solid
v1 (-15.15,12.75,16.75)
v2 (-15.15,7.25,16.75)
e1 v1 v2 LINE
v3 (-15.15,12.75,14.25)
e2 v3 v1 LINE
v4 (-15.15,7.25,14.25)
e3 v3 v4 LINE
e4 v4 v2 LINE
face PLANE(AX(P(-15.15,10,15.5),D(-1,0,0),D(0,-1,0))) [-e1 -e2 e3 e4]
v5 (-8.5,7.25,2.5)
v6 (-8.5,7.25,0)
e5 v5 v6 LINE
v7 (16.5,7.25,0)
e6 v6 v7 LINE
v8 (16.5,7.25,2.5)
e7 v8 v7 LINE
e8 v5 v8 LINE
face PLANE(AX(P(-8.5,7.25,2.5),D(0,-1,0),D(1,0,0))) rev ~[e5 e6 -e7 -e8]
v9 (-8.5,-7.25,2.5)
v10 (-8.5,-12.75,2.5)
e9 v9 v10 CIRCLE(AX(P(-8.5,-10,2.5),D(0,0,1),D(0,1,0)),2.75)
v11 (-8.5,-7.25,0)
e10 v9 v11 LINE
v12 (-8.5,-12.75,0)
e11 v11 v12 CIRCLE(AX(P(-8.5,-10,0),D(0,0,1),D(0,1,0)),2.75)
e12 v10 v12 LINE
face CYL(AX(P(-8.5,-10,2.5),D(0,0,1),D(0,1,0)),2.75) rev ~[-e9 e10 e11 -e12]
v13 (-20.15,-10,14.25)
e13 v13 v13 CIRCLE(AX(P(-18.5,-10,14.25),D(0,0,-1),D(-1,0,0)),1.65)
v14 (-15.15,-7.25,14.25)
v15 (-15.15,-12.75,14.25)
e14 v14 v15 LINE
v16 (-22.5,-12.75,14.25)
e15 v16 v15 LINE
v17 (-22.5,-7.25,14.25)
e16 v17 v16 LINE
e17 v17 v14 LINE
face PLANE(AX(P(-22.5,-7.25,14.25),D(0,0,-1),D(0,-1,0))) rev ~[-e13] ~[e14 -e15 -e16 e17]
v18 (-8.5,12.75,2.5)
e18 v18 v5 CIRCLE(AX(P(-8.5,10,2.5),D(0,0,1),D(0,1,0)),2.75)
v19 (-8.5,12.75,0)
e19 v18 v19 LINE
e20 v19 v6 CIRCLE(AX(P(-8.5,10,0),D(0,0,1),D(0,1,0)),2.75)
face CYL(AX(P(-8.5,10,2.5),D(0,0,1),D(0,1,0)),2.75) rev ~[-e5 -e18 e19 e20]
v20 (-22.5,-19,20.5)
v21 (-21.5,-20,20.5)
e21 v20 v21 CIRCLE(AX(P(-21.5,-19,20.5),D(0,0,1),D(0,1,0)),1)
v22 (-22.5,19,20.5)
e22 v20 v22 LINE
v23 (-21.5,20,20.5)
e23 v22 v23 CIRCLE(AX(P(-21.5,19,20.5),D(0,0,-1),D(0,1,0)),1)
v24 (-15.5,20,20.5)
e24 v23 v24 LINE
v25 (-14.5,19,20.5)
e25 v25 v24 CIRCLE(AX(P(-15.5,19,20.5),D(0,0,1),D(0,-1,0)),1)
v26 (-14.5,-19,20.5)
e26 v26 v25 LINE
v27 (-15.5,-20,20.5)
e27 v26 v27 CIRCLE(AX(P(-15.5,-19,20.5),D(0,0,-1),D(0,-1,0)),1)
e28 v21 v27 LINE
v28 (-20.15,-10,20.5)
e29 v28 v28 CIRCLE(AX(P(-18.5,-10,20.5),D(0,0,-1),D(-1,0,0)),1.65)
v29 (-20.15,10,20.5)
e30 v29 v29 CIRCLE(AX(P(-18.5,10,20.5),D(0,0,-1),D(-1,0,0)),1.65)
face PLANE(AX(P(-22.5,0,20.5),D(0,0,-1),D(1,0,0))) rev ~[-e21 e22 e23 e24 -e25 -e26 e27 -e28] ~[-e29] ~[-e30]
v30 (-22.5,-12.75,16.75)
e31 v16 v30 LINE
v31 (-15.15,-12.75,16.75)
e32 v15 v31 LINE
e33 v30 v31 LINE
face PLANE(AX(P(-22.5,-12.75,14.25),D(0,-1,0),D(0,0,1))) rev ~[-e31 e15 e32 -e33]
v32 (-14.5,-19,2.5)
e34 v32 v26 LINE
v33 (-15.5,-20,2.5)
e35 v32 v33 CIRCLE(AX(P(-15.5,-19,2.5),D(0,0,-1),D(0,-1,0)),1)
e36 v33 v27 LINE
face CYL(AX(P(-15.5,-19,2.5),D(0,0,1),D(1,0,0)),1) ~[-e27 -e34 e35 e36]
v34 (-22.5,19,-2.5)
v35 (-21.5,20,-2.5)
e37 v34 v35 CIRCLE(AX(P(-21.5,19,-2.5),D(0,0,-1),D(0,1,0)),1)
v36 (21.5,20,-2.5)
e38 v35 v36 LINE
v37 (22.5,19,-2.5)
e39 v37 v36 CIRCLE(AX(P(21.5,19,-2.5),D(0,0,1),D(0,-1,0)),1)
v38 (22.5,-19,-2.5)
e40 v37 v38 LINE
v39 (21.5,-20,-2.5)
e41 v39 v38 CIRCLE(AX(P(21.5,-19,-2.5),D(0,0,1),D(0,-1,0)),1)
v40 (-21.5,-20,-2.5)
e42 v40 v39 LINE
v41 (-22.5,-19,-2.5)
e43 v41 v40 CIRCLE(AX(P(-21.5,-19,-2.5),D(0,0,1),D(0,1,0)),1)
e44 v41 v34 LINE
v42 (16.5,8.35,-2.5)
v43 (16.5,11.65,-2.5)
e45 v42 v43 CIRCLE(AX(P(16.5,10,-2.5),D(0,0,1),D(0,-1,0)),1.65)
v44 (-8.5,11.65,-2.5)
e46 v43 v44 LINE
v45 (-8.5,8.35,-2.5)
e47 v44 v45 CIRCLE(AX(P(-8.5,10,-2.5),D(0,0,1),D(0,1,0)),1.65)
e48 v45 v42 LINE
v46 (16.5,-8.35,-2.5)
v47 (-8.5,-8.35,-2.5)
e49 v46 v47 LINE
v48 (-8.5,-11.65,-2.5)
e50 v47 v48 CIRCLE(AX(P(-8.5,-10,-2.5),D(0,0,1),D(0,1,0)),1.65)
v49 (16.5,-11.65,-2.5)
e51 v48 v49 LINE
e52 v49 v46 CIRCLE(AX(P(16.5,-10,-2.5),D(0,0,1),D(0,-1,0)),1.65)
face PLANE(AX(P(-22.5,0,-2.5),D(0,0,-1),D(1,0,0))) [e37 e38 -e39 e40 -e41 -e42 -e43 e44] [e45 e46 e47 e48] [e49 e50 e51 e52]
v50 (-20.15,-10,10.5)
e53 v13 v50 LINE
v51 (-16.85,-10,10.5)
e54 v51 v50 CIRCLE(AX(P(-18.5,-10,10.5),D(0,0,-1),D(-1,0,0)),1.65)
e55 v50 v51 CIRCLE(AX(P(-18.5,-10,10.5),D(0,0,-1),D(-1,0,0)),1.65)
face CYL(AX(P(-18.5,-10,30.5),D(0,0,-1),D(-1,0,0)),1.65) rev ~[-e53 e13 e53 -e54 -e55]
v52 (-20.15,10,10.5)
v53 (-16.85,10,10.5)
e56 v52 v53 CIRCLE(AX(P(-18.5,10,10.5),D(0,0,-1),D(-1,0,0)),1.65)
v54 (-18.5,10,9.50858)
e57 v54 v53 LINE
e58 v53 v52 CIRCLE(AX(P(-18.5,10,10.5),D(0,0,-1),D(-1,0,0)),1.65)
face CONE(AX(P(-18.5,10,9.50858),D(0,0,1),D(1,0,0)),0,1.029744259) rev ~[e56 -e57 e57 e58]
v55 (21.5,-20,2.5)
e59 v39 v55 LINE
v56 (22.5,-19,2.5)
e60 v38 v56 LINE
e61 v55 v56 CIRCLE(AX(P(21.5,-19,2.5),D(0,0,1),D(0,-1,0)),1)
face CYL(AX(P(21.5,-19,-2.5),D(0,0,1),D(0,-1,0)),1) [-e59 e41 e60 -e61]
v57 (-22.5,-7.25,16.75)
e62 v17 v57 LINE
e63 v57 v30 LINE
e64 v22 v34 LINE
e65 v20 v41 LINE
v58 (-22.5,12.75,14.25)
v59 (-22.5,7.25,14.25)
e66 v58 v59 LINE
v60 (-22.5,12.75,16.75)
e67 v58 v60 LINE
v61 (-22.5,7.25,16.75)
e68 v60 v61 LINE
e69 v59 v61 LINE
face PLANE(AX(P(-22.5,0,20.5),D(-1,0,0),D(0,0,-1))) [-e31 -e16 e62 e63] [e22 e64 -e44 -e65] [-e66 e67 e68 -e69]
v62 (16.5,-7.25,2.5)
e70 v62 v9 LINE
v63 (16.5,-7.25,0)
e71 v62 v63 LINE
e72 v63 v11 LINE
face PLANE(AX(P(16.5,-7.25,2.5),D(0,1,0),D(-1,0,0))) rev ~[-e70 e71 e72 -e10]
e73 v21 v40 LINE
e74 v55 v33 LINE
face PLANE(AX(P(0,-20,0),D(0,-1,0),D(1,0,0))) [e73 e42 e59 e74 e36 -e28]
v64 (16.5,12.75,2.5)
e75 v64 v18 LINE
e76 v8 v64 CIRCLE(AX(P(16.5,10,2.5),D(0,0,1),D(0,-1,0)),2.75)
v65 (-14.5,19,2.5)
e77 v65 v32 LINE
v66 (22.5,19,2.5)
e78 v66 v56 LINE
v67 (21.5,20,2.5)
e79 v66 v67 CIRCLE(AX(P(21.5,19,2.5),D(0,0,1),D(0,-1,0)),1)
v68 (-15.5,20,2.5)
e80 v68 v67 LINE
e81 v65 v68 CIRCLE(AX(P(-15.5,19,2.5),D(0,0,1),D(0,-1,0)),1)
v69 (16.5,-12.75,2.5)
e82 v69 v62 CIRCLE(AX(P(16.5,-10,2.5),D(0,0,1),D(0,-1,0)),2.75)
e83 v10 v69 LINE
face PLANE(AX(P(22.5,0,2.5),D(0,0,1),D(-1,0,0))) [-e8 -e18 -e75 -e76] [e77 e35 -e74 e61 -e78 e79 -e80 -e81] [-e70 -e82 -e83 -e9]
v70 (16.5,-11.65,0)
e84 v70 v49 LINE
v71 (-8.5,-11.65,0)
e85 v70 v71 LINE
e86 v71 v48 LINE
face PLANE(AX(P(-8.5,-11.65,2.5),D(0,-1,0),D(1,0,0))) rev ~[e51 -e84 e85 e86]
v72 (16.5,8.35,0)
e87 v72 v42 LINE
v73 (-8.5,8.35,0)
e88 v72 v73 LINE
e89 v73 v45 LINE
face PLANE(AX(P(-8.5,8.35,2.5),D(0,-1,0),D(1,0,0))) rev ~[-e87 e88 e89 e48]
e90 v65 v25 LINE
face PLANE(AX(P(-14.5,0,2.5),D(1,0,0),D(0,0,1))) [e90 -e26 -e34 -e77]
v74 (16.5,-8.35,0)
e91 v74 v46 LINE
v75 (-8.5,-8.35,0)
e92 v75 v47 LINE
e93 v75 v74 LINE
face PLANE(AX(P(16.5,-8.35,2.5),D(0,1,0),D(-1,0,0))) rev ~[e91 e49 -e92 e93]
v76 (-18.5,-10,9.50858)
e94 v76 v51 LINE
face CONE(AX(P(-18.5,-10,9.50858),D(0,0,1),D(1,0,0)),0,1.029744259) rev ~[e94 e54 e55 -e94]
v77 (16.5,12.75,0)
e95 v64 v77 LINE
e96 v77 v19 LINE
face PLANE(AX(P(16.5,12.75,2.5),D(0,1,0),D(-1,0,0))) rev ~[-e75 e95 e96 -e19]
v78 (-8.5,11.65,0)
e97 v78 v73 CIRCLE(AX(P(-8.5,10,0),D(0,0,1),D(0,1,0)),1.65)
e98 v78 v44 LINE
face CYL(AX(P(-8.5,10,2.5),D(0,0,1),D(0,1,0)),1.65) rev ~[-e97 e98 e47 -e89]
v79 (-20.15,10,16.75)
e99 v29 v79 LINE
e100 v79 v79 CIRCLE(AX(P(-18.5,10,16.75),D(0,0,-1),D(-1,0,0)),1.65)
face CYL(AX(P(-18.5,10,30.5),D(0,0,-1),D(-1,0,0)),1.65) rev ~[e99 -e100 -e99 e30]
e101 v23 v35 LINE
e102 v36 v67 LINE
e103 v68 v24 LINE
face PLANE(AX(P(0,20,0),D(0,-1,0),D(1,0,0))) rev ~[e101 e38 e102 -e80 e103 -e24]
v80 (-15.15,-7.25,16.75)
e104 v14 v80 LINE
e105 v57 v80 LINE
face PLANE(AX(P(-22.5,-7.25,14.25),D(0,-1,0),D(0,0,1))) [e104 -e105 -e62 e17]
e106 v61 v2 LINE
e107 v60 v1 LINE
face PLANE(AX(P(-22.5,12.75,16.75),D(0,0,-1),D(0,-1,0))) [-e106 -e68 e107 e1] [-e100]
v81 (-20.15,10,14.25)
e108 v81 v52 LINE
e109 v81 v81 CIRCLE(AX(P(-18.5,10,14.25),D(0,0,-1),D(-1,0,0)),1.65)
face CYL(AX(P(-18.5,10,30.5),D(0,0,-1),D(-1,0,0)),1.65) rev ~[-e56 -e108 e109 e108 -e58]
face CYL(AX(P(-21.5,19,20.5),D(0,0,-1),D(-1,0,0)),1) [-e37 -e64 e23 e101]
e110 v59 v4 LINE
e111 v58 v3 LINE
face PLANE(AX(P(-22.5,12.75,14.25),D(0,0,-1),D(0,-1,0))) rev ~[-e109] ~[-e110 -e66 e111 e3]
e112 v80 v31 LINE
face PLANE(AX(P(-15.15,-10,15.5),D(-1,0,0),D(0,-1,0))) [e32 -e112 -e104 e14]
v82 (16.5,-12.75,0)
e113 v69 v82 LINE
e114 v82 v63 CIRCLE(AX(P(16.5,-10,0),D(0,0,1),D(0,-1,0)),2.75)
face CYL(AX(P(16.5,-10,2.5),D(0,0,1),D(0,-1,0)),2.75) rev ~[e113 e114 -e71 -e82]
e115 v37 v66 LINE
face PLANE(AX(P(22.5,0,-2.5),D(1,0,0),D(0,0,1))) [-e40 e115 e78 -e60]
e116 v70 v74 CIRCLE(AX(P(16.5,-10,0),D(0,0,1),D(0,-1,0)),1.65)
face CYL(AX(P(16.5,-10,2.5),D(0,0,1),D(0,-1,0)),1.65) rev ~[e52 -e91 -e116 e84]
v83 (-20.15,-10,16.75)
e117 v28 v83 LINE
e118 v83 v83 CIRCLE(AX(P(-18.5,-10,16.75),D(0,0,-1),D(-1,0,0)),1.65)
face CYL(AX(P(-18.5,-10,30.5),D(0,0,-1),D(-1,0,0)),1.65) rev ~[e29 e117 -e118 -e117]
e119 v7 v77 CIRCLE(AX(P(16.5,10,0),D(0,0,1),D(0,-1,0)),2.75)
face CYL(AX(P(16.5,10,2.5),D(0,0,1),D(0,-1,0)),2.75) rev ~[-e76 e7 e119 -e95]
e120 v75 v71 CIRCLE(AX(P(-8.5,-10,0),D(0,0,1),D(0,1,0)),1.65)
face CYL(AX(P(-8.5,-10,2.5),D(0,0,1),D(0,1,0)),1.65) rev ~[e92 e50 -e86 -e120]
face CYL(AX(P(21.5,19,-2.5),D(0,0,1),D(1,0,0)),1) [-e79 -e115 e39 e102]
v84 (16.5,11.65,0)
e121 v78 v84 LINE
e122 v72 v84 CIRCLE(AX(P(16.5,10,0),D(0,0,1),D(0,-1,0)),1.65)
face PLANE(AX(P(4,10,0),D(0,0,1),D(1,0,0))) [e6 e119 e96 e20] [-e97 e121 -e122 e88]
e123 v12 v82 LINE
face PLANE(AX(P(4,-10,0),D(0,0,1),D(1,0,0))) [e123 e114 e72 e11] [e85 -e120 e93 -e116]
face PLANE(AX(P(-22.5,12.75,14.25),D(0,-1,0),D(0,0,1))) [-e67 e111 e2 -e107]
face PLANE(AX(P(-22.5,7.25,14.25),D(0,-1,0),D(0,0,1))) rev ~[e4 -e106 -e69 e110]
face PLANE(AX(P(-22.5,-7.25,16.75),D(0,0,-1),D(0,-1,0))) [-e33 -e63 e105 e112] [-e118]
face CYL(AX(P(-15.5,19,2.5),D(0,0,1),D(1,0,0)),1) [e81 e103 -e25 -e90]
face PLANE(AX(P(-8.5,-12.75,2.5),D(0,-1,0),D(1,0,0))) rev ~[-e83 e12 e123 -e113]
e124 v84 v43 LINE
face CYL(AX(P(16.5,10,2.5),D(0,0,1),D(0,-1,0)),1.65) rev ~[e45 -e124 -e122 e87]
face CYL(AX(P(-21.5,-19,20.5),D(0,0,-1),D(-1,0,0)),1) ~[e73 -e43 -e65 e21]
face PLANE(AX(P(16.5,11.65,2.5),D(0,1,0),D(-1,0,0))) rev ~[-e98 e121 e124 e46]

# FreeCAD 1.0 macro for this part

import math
import FreeCAD as App
import Part
import Sketcher

V = App.Vector
Q = App.Units.Quantity


def edges_at(feature, points):
    """Names of the edges that pass closest to the given points."""
    edges = feature.Shape.Edges
    near = lambda p: min(range(len(edges)), key=lambda i: edges[i].distToShape(Part.Vertex(*p))[0])
    return sorted({f"Edge{near(p) + 1}" for p in points})


def add_polygon(sketch, points):
    """Adds a closed chain of lines whose ends are joined by coincident constraints."""
    first, n = sketch.GeometryCount, len(points)
    for a, b in zip(points, points[1:] + points[:1]):
        sketch.addGeometry(Part.LineSegment(App.Vector(*a, 0), App.Vector(*b, 0)), False)
    for i in range(n):
        sketch.addConstraint(Sketcher.Constraint("Coincident", first + i, 2, first + (i + 1) % n, 1))

doc = App.newDocument("Part")
body = doc.addObject("PartDesign::Body", "Body")

# Sketch on XZ plane
sketch1 = body.newObject("Sketcher::SketchObject", "Sketch")
sketch1.AttachmentSupport = (doc.getObject("XZ_Plane"), [""])
sketch1.MapMode = "FlatFace"
add_polygon(sketch1, [(-22, -2), (22, -2), (22, 2), (-14, 2), (-14, 20), (-22, 20)])  # lines 0-5
sketch1.addConstraint([
    Sketcher.Constraint("Horizontal", 0),
    Sketcher.Constraint("Vertical", 1),
    Sketcher.Constraint("Horizontal", 2),
    Sketcher.Constraint("Vertical", 3),
    Sketcher.Constraint("Horizontal", 4),
    Sketcher.Constraint("Vertical", 5),
    Sketcher.Constraint("Symmetric", 1, 2, 5, 2, -1, 1),
    Sketcher.Constraint("DistanceX", 0, 1, 0, 2, Q("45 mm")),
    Sketcher.Constraint("DistanceX", 2, 2, 2, 1, Q("37 mm")),
    Sketcher.Constraint("DistanceY", 1, 1, 1, 2, Q("5 mm")),
    Sketcher.Constraint("DistanceY", 3, 1, 3, 2, Q("18 mm")),
])
pad1 = body.newObject("PartDesign::Pad", "Pad")
pad1.Profile = sketch1
pad1.Length = 40
pad1.Midplane = True
doc.recompute()

fillet = body.newObject("PartDesign::Fillet", "Fillet")
fillet.Base = (pad1, edges_at(pad1, [
    (-22.5, -20, 9),
    (-14.5, -20, 11.5),
    (22.5, -20, 0),
    (22.5, 20, 0),
    (-22.5, 20, 9),
    (-14.5, 20, 11.5),
]))
fillet.Radius = 1

# Sketch on XY plane
sketch2 = body.newObject("Sketcher::SketchObject", "Sketch001")
sketch2.AttachmentSupport = (doc.getObject("XY_Plane"), [""])
sketch2.MapMode = "FlatFace"
sketch2.AttachmentOffset = App.Placement(V(0, 0, 2.5), App.Rotation())
sketch2.addGeometry([
    Part.ArcOfCircle(Part.Circle(V(-8.5, 10, 0), V(0, 0, 1), 1.6), math.radians(90), math.radians(270)),  # 0
    Part.LineSegment(V(-8.5, 8.3, 0), V(16.5, 8.3, 0)),  # 1
    Part.ArcOfCircle(Part.Circle(V(16.5, 10, 0), V(0, 0, 1), 1.6), math.radians(-90), math.radians(90)),  # 2
    Part.LineSegment(V(16.5, 11.7, 0), V(-8.5, 11.7, 0)),  # 3
    Part.ArcOfCircle(Part.Circle(V(-8.5, -10, 0), V(0, 0, 1), 1.6), math.radians(90), math.radians(270)),  # 4
    Part.LineSegment(V(-8.5, -11.7, 0), V(16.5, -11.7, 0)),  # 5
    Part.ArcOfCircle(Part.Circle(V(16.5, -10, 0), V(0, 0, 1), 1.6), math.radians(-90), math.radians(90)),  # 6
    Part.LineSegment(V(16.5, -8.3, 0), V(-8.5, -8.3, 0)),  # 7
], False)
sketch2.addConstraint([
    Sketcher.Constraint("Tangent", 0, 2, 1, 1),
    Sketcher.Constraint("Tangent", 1, 2, 2, 1),
    Sketcher.Constraint("Tangent", 2, 2, 3, 1),
    Sketcher.Constraint("Tangent", 3, 2, 0, 1),
    Sketcher.Constraint("Tangent", 4, 2, 5, 1),
    Sketcher.Constraint("Tangent", 5, 2, 6, 1),
    Sketcher.Constraint("Tangent", 6, 2, 7, 1),
    Sketcher.Constraint("Tangent", 7, 2, 4, 1),
    Sketcher.Constraint("Horizontal", 1),
    Sketcher.Constraint("Horizontal", 3),
    Sketcher.Constraint("Horizontal", 5),
    Sketcher.Constraint("Horizontal", 7),
    Sketcher.Constraint("Equal", 2, 4),
    Sketcher.Constraint("Symmetric", 0, 3, 4, 3, -1),
    Sketcher.Constraint("Vertical", 2, 3, 6, 3),
    Sketcher.Constraint("DistanceX", 1, 1, 1, 2, Q("25 mm")),
    Sketcher.Constraint("Radius", 0, Q("1.65 mm")),
    Sketcher.Constraint("DistanceY", -1, 1, 0, 3, Q("10 mm")),
    Sketcher.Constraint("DistanceX", 0, 3, -1, 1, Q("8.5 mm")),
])
pocket1 = body.newObject("PartDesign::Pocket", "Pocket")
pocket1.Profile = sketch2
pocket1.Length = 5

# Sketch on XY plane
sketch3 = body.newObject("Sketcher::SketchObject", "Sketch002")
sketch3.AttachmentSupport = (doc.getObject("XY_Plane"), [""])
sketch3.MapMode = "FlatFace"
sketch3.AttachmentOffset = App.Placement(V(0, 0, 2.5), App.Rotation())
sketch3.addGeometry([
    Part.ArcOfCircle(Part.Circle(V(-8.5, 10, 0), V(0, 0, 1), 2.8), math.radians(90), math.radians(270)),  # 0
    Part.LineSegment(V(-8.5, 7.2, 0), V(16.5, 7.2, 0)),  # 1
    Part.ArcOfCircle(Part.Circle(V(16.5, 10, 0), V(0, 0, 1), 2.8), math.radians(-90), math.radians(90)),  # 2
    Part.LineSegment(V(16.5, 12.8, 0), V(-8.5, 12.8, 0)),  # 3
    Part.ArcOfCircle(Part.Circle(V(-8.5, -10, 0), V(0, 0, 1), 2.8), math.radians(90), math.radians(270)),  # 4
    Part.LineSegment(V(-8.5, -12.8, 0), V(16.5, -12.8, 0)),  # 5
    Part.ArcOfCircle(Part.Circle(V(16.5, -10, 0), V(0, 0, 1), 2.8), math.radians(-90), math.radians(90)),  # 6
    Part.LineSegment(V(16.5, -7.2, 0), V(-8.5, -7.2, 0)),  # 7
], False)
sketch3.addConstraint([
    Sketcher.Constraint("Tangent", 0, 2, 1, 1),
    Sketcher.Constraint("Tangent", 1, 2, 2, 1),
    Sketcher.Constraint("Tangent", 2, 2, 3, 1),
    Sketcher.Constraint("Tangent", 3, 2, 0, 1),
    Sketcher.Constraint("Tangent", 4, 2, 5, 1),
    Sketcher.Constraint("Tangent", 5, 2, 6, 1),
    Sketcher.Constraint("Tangent", 6, 2, 7, 1),
    Sketcher.Constraint("Tangent", 7, 2, 4, 1),
    Sketcher.Constraint("Horizontal", 1),
    Sketcher.Constraint("Horizontal", 3),
    Sketcher.Constraint("Horizontal", 5),
    Sketcher.Constraint("Horizontal", 7),
    Sketcher.Constraint("Equal", 2, 4),
    Sketcher.Constraint("Symmetric", 0, 3, 4, 3, -1),
    Sketcher.Constraint("Vertical", 2, 3, 6, 3),
    Sketcher.Constraint("DistanceX", 1, 1, 1, 2, Q("25 mm")),
    Sketcher.Constraint("Radius", 0, Q("2.75 mm")),
    Sketcher.Constraint("DistanceY", -1, 1, 0, 3, Q("10 mm")),
    Sketcher.Constraint("DistanceX", 0, 3, -1, 1, Q("8.5 mm")),
])
pocket2 = body.newObject("PartDesign::Pocket", "Pocket001")
pocket2.Profile = sketch3
pocket2.Length = 2.5

# Sketch on XY plane
sketch4 = body.newObject("Sketcher::SketchObject", "Sketch003")
sketch4.AttachmentSupport = (doc.getObject("XY_Plane"), [""])
sketch4.MapMode = "FlatFace"
sketch4.AttachmentOffset = App.Placement(V(0, 0, 20.5), App.Rotation())
sketch4.addGeometry([
    Part.Circle(V(-18.5, 10, 0), V(0, 0, 1), 1.6),
    Part.Circle(V(-18.5, -10, 0), V(0, 0, 1), 1.6),
], False)
sketch4.addConstraint([
    Sketcher.Constraint("Equal", 0, 1),
    Sketcher.Constraint("Symmetric", 0, 3, 1, 3, -1),
    Sketcher.Constraint("Diameter", 0, Q("3.3 mm")),
    Sketcher.Constraint("DistanceY", -1, 1, 0, 3, Q("10 mm")),
    Sketcher.Constraint("DistanceX", 0, 3, -1, 1, Q("18.5 mm")),
])
doc.recompute()
hole = body.newObject("PartDesign::Hole", "Hole")
hole.Profile = sketch4
hole.ThreadType = "None"
hole.Diameter = 3.3
hole.DepthType = "Dimension"
hole.Depth = 10
hole.DrillPoint = "Angled"
hole.DrillPointAngle = 118

# Sketch on YZ plane
sketch5 = body.newObject("Sketcher::SketchObject", "Sketch004")
sketch5.AttachmentSupport = (doc.getObject("YZ_Plane"), [""])
sketch5.MapMode = "FlatFace"
sketch5.AttachmentOffset = App.Placement(V(0, 0, -22.5), App.Rotation())
add_polygon(sketch5, [(12.8, 16.8), (12.8, 14.2), (7.2, 14.2), (7.2, 16.8)])  # lines 0-3
add_polygon(sketch5, [(-7.2, 16.8), (-7.2, 14.2), (-12.8, 14.2), (-12.8, 16.8)])  # lines 4-7
sketch5.addConstraint([
    Sketcher.Constraint("Vertical", 0),
    Sketcher.Constraint("Horizontal", 1),
    Sketcher.Constraint("Vertical", 2),
    Sketcher.Constraint("Horizontal", 3),
    Sketcher.Constraint("Vertical", 4),
    Sketcher.Constraint("Horizontal", 5),
    Sketcher.Constraint("Vertical", 6),
    Sketcher.Constraint("Horizontal", 7),
    Sketcher.Constraint("Symmetric", 1, 2, 4, 2, -2),
    Sketcher.Constraint("Symmetric", 3, 2, 6, 2, -2),
    Sketcher.Constraint("DistanceX", 1, 2, 1, 1, Q("5.5 mm")),
    Sketcher.Constraint("DistanceY", 0, 2, 0, 1, Q("2.5 mm")),
    Sketcher.Constraint("DistanceX", 4, 2, 0, 2, Q("20 mm")),
    Sketcher.Constraint("DistanceY", -1, 1, 0, 2, Q("14.25 mm")),
])
pocket3 = body.newObject("PartDesign::Pocket", "Pocket002")
pocket3.Profile = sketch5
pocket3.Length = 7.35
pocket3.Reversed = True

doc.recompute()
